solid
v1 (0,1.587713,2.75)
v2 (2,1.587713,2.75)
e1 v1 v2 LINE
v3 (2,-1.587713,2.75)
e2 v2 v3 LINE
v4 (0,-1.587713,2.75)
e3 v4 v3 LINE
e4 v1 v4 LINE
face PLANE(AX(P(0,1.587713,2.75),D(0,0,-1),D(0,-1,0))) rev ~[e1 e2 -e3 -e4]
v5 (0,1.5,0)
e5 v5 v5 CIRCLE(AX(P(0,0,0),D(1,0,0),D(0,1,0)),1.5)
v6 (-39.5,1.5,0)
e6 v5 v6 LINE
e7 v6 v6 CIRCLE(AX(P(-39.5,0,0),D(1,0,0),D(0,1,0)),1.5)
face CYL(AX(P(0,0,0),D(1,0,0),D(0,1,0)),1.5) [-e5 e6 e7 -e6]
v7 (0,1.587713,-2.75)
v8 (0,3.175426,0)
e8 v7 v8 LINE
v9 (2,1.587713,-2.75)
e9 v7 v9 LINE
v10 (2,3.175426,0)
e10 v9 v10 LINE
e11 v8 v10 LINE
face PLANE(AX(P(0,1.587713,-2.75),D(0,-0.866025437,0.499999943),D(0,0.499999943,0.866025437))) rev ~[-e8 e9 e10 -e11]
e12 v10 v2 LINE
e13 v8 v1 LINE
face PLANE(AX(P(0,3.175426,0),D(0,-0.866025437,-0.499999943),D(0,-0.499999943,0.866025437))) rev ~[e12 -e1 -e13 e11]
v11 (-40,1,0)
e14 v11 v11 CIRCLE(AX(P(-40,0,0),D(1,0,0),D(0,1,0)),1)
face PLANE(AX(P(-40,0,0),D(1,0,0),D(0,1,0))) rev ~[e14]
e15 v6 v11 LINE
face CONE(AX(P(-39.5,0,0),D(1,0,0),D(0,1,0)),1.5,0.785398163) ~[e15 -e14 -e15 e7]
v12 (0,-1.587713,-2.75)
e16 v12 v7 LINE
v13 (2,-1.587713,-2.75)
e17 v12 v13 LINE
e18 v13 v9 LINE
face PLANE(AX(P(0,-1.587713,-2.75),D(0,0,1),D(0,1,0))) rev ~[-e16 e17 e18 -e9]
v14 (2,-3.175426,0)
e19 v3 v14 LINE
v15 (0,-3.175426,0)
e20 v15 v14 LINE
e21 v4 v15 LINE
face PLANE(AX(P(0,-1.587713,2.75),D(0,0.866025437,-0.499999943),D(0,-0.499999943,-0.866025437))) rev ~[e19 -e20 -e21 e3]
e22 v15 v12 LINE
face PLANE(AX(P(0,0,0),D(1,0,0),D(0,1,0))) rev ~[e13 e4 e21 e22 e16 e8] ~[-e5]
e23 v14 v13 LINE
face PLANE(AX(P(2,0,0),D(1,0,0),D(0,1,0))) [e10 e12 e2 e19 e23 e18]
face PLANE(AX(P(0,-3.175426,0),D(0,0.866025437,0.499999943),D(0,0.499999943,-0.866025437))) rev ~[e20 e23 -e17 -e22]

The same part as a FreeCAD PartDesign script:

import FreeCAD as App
import Part
import Sketcher

V = App.Vector
Q = App.Units.Quantity


def edges_at(feature, points):
    """Names of the edges that pass closest to the given points."""
    edges = feature.Shape.Edges
    near = lambda p: min(range(len(edges)), key=lambda i: edges[i].distToShape(Part.Vertex(*p))[0])
    return sorted({f"Edge{near(p) + 1}" for p in points})

doc = App.newDocument("Part")
body = doc.addObject("PartDesign::Body", "Body")

sketch1 = doc.addObject("Sketcher::SketchObject", "Sketch")
body.addObject(sketch1)
sketch1.AttachmentSupport = (doc.YZ_Plane, [""])
sketch1.MapMode = "FlatFace"
sketch1.addGeometry([
    Part.LineSegment(V(1.6, 2.8, 0), V(-1.6, 2.8, 0)),
    Part.LineSegment(V(-1.6, 2.8, 0), V(-3.2, 0, 0)),
    Part.LineSegment(V(-3.2, 0, 0), V(-1.6, -2.8, 0)),
    Part.LineSegment(V(-1.6, -2.8, 0), V(1.6, -2.8, 0)),
    Part.LineSegment(V(1.6, -2.8, 0), V(3.2, 0, 0)),
    Part.LineSegment(V(3.2, 0, 0), V(1.6, 2.8, 0)),
], False)
sketch1.addConstraint([
    Sketcher.Constraint("Coincident", 0, 2, 1, 1),
    Sketcher.Constraint("Coincident", 1, 2, 2, 1),
    Sketcher.Constraint("Coincident", 2, 2, 3, 1),
    Sketcher.Constraint("Coincident", 3, 2, 4, 1),
    Sketcher.Constraint("Coincident", 4, 2, 5, 1),
    Sketcher.Constraint("Coincident", 5, 2, 0, 1),
    Sketcher.Constraint("Horizontal", 0),
    Sketcher.Constraint("Horizontal", 3),
    Sketcher.Constraint("Symmetric", 0, 2, 3, 2, -1, 1),
    Sketcher.Constraint("Symmetric", 1, 2, 4, 2, -1, 1),
    Sketcher.Constraint("PointOnObject", 1, 2, -1),
    Sketcher.Constraint("Parallel", 2, 5),
    Sketcher.Constraint("Vertical", 0, 2, 2, 2),
    Sketcher.Constraint("Angle", 1, Q("-119.999996 deg")),
    Sketcher.Constraint("DistanceY", 2, 2, 0, 2, 5.5),
    Sketcher.Constraint("DistanceX", 0, 2, 0, 1, 3.175426),
])
pad1 = doc.addObject("PartDesign::Pad", "Pad")
body.addObject(pad1)
pad1.Profile = sketch1
pad1.Length = 2

sketch2 = doc.addObject("Sketcher::SketchObject", "Sketch001")
body.addObject(sketch2)
sketch2.AttachmentSupport = (doc.YZ_Plane, [""])
sketch2.MapMode = "FlatFace"
sketch2.addGeometry(Part.Circle(V(0, 0, 0), V(0, 0, 1), 1.5), False)
sketch2.addConstraint([
    Sketcher.Constraint("Coincident", 0, 3, -1, 1),
    Sketcher.Constraint("Diameter", 0, 3.0),
])
pad2 = doc.addObject("PartDesign::Pad", "Pad001")
body.addObject(pad2)
pad2.Profile = sketch2
pad2.Length = 40
pad2.Reversed = True
doc.recompute()

chamfer = doc.addObject("PartDesign::Chamfer", "Chamfer")
body.addObject(chamfer)
chamfer.Base = (pad2, edges_at(pad2, [(-40, -1.5, 0)]))
chamfer.Size = 0.5

doc.recompute()
